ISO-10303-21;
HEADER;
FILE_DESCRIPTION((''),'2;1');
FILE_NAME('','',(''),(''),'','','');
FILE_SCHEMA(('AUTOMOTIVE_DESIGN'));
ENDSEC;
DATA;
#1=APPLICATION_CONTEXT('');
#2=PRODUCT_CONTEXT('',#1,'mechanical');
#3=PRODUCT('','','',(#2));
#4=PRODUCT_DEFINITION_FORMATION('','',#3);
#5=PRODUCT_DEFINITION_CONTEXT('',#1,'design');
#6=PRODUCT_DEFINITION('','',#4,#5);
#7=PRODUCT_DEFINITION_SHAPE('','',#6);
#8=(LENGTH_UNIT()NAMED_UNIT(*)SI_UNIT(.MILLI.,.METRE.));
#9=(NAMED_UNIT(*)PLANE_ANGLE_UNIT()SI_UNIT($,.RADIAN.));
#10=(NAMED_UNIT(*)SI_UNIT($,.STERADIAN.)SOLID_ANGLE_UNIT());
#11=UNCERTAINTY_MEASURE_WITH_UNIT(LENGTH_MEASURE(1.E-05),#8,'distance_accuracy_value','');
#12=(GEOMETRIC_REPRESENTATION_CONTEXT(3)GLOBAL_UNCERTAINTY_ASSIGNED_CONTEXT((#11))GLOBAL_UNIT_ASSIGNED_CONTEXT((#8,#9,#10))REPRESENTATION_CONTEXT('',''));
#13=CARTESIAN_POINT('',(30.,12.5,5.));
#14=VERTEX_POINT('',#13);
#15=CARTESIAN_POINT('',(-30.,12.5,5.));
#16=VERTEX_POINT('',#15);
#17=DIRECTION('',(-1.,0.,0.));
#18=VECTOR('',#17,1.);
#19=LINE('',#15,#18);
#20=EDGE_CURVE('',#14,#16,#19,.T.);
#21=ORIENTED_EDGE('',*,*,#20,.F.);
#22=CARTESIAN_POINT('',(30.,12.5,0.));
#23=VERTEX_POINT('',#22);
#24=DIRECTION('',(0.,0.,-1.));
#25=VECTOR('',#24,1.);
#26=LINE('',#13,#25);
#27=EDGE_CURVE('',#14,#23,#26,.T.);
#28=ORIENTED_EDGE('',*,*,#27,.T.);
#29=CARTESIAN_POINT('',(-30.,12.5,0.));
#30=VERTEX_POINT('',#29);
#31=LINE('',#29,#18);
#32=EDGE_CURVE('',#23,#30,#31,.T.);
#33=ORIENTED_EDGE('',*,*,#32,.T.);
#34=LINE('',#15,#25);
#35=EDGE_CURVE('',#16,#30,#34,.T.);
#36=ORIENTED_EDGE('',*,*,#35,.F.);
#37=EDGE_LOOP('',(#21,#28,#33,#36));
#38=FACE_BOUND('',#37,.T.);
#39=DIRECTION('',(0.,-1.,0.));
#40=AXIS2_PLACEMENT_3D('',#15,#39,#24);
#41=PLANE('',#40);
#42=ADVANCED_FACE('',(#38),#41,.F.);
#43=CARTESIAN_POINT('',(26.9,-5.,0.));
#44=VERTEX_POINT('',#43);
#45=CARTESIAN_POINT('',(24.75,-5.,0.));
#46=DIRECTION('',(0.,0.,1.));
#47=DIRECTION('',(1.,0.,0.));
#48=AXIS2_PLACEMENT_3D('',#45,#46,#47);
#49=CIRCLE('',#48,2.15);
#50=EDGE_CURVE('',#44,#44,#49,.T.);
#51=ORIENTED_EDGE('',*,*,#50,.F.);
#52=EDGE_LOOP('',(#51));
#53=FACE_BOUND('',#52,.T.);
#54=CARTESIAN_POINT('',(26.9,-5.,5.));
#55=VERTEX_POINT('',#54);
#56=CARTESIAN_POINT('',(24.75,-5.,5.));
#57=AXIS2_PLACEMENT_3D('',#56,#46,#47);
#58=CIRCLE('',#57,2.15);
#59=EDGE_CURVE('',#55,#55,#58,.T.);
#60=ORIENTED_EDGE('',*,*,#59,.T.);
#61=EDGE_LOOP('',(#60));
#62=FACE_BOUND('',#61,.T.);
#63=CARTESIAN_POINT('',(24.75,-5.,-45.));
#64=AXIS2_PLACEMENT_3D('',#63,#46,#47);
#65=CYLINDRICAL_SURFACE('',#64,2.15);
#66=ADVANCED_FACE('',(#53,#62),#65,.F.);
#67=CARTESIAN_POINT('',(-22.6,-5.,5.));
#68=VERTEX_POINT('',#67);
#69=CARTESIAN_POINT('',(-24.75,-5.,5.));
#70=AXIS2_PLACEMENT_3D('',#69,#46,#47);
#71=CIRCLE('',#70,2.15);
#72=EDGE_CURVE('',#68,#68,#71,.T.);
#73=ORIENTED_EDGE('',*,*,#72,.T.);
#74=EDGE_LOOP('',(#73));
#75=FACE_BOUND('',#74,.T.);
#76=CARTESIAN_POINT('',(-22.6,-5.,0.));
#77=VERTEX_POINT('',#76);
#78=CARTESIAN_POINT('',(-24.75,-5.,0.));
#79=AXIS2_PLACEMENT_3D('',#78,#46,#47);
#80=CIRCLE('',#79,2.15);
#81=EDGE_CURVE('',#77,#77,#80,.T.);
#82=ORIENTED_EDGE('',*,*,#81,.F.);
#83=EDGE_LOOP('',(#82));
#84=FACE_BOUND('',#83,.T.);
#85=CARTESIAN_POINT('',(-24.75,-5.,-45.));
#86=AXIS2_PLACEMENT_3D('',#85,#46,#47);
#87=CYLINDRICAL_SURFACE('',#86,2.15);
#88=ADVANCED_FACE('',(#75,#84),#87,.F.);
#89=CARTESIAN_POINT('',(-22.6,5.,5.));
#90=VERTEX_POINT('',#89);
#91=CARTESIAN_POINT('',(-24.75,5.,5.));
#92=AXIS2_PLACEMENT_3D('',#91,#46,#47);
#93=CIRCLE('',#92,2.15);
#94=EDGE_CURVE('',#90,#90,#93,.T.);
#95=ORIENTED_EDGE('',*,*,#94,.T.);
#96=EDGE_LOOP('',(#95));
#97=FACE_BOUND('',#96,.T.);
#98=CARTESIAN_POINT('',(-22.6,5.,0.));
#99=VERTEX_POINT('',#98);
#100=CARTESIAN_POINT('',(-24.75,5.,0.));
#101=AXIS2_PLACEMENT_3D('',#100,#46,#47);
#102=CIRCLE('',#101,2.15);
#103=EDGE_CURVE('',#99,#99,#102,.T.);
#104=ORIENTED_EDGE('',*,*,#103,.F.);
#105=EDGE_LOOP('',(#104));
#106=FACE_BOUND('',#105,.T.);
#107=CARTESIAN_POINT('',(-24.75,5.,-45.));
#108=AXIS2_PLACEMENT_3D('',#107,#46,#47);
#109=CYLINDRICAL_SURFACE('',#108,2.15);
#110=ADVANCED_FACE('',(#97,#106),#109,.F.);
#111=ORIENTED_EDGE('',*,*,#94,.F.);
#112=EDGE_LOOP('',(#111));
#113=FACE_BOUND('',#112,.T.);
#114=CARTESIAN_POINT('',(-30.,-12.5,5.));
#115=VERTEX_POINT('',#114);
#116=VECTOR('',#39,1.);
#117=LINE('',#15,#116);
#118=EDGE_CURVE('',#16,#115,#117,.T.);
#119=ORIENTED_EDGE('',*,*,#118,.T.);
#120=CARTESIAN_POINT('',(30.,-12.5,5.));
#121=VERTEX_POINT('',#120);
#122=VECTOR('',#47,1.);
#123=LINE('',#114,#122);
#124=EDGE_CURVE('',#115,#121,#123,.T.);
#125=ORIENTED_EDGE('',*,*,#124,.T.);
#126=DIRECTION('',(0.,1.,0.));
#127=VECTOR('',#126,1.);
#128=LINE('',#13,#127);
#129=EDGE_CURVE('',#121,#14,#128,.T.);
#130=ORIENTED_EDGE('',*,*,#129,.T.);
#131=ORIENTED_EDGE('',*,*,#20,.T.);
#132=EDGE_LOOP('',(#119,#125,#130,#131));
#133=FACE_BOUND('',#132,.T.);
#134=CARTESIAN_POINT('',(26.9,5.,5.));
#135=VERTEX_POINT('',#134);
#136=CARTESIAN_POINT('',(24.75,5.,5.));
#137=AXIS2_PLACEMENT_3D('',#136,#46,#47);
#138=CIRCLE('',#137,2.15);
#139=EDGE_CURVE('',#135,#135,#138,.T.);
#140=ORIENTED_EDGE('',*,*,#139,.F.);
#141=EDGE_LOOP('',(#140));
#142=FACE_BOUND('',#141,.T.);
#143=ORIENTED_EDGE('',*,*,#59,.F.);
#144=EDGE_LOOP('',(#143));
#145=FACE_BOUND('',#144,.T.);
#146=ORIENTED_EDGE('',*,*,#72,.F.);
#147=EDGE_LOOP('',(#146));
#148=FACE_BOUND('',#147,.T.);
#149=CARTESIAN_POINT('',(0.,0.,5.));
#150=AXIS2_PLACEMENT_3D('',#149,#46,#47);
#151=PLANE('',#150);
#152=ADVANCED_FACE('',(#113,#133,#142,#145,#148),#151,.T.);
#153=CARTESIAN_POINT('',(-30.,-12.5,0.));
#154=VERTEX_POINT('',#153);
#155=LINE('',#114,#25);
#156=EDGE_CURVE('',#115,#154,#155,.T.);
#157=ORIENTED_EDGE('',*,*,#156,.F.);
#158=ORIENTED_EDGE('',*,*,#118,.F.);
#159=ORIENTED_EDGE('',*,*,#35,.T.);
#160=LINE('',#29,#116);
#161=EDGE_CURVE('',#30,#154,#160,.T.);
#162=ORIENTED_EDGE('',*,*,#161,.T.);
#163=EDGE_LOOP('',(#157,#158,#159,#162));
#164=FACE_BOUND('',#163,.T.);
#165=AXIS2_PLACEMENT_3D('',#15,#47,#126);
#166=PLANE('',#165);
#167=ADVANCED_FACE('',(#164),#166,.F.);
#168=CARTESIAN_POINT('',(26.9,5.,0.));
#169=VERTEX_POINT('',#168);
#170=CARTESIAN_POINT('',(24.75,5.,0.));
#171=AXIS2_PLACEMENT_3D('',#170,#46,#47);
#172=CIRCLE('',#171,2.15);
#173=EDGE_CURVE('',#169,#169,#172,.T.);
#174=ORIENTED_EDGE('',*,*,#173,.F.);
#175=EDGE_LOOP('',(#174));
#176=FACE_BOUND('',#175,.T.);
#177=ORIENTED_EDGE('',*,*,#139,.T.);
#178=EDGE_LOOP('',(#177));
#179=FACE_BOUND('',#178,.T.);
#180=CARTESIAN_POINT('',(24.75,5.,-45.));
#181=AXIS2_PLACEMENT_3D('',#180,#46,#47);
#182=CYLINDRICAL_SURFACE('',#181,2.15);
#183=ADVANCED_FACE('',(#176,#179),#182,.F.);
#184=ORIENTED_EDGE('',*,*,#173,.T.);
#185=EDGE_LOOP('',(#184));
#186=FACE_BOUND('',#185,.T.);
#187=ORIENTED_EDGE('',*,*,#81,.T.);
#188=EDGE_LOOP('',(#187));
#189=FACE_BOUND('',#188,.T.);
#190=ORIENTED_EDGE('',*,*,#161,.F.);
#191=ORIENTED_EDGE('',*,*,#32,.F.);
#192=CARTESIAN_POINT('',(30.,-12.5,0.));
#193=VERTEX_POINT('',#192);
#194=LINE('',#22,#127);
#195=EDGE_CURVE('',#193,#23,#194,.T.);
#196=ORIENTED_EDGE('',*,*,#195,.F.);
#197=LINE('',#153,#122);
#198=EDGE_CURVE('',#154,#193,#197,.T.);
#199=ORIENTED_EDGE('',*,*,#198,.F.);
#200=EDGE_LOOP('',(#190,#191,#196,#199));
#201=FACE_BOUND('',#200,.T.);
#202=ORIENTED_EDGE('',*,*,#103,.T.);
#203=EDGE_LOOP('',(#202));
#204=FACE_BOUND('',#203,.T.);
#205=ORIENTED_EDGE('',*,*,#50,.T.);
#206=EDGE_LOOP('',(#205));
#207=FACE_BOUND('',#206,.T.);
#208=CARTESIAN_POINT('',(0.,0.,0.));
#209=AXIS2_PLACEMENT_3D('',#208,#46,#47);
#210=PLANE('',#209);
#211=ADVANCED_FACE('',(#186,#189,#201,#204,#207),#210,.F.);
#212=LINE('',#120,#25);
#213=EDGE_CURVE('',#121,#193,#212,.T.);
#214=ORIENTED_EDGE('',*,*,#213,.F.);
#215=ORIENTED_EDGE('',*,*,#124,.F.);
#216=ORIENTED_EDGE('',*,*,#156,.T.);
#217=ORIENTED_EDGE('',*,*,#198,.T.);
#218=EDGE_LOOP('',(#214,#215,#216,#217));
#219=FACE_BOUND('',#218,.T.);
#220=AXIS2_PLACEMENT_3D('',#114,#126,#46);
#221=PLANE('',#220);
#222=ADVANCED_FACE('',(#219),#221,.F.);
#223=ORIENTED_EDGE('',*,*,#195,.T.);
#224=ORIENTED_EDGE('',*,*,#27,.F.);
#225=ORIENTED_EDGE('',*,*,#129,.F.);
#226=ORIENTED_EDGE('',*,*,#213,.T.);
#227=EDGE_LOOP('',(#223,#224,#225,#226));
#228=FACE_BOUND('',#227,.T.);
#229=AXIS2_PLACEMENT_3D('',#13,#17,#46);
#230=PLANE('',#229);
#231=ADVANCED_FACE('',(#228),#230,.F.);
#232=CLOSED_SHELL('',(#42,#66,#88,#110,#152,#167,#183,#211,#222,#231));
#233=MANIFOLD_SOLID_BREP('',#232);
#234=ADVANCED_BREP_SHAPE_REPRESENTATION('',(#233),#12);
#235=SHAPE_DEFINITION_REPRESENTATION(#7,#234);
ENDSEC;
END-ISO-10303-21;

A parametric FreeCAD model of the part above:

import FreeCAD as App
import Part
import Sketcher

V = App.Vector


def add_polygon(sketch, points):
    """Adds a closed chain of lines whose ends are joined by coincident constraints."""
    first, n = sketch.GeometryCount, len(points)
    for a, b in zip(points, points[1:] + points[:1]):
        sketch.addGeometry(Part.LineSegment(App.Vector(*a, 0), App.Vector(*b, 0)), False)
    for i in range(n):
        sketch.addConstraint(Sketcher.Constraint("Coincident", first + i, 2, first + (i + 1) % n, 1))

doc = App.newDocument("Part")
body = doc.addObject("PartDesign::Body", "Body")

# Sketch on XY plane
sketch1 = body.newObject("Sketcher::SketchObject", "Sketch")
sketch1.AttachmentSupport = (doc.getObject("XY_Plane"), [""])
sketch1.MapMode = "FlatFace"
add_polygon(sketch1, [(-30, 12), (-30, -12), (30, -12), (30, 12)])  # lines 0-3
sketch1.addConstraint(Sketcher.Constraint("Vertical", 0))
sketch1.addConstraint(Sketcher.Constraint("Horizontal", 1))
sketch1.addConstraint(Sketcher.Constraint("Vertical", 2))
sketch1.addConstraint(Sketcher.Constraint("Horizontal", 3))
sketch1.addConstraint(Sketcher.Constraint("Symmetric", 0, 2, 2, 2, -1, 1))
sketch1.addConstraint(Sketcher.Constraint("DistanceX", 1, 1, 1, 2, 60.0))
sketch1.addConstraint(Sketcher.Constraint("DistanceY", 0, 2, 0, 1, 25.0))
pad1 = body.newObject("PartDesign::Pad", "Pad")
pad1.Profile = sketch1
pad1.Length = 5

# Sketch on XY plane
sketch2 = body.newObject("Sketcher::SketchObject", "Sketch001")
sketch2.AttachmentSupport = (doc.getObject("XY_Plane"), [""])
sketch2.MapMode = "FlatFace"
sketch2.AttachmentOffset = App.Placement(V(0, 0, 5), App.Rotation())
sketch2.addGeometry(Part.Circle(V(-24.8, 5, 0), V(0, 0, 1), 2.1), False)
sketch2.addGeometry(Part.Circle(V(-24.8, -5, 0), V(0, 0, 1), 2.1), False)
sketch2.addGeometry(Part.Circle(V(24.8, 5, 0), V(0, 0, 1), 2.1), False)
sketch2.addGeometry(Part.Circle(V(24.8, -5, 0), V(0, 0, 1), 2.1), False)
sketch2.addConstraint(Sketcher.Constraint("Equal", 0, 1))
sketch2.addConstraint(Sketcher.Constraint("Equal", 1, 2))
sketch2.addConstraint(Sketcher.Constraint("Equal", 2, 3))
sketch2.addConstraint(Sketcher.Constraint("Symmetric", 1, 3, 2, 3, -1, 1))
sketch2.addConstraint(Sketcher.Constraint("Symmetric", 0, 3, 3, 3, -1, 1))
sketch2.addConstraint(Sketcher.Constraint("Symmetric", 0, 3, 2, 3, -2))
sketch2.addConstraint(Sketcher.Constraint("Diameter", 0, 4.3))
sketch2.addConstraint(Sketcher.Constraint("DistanceY", -1, 1, 0, 3, 5.0))
sketch2.addConstraint(Sketcher.Constraint("DistanceX", 0, 3, 2, 3, 49.5))
pocket1 = body.newObject("PartDesign::Pocket", "Pocket")
pocket1.Profile = sketch2
pocket1.Length = 50

doc.recompute()
